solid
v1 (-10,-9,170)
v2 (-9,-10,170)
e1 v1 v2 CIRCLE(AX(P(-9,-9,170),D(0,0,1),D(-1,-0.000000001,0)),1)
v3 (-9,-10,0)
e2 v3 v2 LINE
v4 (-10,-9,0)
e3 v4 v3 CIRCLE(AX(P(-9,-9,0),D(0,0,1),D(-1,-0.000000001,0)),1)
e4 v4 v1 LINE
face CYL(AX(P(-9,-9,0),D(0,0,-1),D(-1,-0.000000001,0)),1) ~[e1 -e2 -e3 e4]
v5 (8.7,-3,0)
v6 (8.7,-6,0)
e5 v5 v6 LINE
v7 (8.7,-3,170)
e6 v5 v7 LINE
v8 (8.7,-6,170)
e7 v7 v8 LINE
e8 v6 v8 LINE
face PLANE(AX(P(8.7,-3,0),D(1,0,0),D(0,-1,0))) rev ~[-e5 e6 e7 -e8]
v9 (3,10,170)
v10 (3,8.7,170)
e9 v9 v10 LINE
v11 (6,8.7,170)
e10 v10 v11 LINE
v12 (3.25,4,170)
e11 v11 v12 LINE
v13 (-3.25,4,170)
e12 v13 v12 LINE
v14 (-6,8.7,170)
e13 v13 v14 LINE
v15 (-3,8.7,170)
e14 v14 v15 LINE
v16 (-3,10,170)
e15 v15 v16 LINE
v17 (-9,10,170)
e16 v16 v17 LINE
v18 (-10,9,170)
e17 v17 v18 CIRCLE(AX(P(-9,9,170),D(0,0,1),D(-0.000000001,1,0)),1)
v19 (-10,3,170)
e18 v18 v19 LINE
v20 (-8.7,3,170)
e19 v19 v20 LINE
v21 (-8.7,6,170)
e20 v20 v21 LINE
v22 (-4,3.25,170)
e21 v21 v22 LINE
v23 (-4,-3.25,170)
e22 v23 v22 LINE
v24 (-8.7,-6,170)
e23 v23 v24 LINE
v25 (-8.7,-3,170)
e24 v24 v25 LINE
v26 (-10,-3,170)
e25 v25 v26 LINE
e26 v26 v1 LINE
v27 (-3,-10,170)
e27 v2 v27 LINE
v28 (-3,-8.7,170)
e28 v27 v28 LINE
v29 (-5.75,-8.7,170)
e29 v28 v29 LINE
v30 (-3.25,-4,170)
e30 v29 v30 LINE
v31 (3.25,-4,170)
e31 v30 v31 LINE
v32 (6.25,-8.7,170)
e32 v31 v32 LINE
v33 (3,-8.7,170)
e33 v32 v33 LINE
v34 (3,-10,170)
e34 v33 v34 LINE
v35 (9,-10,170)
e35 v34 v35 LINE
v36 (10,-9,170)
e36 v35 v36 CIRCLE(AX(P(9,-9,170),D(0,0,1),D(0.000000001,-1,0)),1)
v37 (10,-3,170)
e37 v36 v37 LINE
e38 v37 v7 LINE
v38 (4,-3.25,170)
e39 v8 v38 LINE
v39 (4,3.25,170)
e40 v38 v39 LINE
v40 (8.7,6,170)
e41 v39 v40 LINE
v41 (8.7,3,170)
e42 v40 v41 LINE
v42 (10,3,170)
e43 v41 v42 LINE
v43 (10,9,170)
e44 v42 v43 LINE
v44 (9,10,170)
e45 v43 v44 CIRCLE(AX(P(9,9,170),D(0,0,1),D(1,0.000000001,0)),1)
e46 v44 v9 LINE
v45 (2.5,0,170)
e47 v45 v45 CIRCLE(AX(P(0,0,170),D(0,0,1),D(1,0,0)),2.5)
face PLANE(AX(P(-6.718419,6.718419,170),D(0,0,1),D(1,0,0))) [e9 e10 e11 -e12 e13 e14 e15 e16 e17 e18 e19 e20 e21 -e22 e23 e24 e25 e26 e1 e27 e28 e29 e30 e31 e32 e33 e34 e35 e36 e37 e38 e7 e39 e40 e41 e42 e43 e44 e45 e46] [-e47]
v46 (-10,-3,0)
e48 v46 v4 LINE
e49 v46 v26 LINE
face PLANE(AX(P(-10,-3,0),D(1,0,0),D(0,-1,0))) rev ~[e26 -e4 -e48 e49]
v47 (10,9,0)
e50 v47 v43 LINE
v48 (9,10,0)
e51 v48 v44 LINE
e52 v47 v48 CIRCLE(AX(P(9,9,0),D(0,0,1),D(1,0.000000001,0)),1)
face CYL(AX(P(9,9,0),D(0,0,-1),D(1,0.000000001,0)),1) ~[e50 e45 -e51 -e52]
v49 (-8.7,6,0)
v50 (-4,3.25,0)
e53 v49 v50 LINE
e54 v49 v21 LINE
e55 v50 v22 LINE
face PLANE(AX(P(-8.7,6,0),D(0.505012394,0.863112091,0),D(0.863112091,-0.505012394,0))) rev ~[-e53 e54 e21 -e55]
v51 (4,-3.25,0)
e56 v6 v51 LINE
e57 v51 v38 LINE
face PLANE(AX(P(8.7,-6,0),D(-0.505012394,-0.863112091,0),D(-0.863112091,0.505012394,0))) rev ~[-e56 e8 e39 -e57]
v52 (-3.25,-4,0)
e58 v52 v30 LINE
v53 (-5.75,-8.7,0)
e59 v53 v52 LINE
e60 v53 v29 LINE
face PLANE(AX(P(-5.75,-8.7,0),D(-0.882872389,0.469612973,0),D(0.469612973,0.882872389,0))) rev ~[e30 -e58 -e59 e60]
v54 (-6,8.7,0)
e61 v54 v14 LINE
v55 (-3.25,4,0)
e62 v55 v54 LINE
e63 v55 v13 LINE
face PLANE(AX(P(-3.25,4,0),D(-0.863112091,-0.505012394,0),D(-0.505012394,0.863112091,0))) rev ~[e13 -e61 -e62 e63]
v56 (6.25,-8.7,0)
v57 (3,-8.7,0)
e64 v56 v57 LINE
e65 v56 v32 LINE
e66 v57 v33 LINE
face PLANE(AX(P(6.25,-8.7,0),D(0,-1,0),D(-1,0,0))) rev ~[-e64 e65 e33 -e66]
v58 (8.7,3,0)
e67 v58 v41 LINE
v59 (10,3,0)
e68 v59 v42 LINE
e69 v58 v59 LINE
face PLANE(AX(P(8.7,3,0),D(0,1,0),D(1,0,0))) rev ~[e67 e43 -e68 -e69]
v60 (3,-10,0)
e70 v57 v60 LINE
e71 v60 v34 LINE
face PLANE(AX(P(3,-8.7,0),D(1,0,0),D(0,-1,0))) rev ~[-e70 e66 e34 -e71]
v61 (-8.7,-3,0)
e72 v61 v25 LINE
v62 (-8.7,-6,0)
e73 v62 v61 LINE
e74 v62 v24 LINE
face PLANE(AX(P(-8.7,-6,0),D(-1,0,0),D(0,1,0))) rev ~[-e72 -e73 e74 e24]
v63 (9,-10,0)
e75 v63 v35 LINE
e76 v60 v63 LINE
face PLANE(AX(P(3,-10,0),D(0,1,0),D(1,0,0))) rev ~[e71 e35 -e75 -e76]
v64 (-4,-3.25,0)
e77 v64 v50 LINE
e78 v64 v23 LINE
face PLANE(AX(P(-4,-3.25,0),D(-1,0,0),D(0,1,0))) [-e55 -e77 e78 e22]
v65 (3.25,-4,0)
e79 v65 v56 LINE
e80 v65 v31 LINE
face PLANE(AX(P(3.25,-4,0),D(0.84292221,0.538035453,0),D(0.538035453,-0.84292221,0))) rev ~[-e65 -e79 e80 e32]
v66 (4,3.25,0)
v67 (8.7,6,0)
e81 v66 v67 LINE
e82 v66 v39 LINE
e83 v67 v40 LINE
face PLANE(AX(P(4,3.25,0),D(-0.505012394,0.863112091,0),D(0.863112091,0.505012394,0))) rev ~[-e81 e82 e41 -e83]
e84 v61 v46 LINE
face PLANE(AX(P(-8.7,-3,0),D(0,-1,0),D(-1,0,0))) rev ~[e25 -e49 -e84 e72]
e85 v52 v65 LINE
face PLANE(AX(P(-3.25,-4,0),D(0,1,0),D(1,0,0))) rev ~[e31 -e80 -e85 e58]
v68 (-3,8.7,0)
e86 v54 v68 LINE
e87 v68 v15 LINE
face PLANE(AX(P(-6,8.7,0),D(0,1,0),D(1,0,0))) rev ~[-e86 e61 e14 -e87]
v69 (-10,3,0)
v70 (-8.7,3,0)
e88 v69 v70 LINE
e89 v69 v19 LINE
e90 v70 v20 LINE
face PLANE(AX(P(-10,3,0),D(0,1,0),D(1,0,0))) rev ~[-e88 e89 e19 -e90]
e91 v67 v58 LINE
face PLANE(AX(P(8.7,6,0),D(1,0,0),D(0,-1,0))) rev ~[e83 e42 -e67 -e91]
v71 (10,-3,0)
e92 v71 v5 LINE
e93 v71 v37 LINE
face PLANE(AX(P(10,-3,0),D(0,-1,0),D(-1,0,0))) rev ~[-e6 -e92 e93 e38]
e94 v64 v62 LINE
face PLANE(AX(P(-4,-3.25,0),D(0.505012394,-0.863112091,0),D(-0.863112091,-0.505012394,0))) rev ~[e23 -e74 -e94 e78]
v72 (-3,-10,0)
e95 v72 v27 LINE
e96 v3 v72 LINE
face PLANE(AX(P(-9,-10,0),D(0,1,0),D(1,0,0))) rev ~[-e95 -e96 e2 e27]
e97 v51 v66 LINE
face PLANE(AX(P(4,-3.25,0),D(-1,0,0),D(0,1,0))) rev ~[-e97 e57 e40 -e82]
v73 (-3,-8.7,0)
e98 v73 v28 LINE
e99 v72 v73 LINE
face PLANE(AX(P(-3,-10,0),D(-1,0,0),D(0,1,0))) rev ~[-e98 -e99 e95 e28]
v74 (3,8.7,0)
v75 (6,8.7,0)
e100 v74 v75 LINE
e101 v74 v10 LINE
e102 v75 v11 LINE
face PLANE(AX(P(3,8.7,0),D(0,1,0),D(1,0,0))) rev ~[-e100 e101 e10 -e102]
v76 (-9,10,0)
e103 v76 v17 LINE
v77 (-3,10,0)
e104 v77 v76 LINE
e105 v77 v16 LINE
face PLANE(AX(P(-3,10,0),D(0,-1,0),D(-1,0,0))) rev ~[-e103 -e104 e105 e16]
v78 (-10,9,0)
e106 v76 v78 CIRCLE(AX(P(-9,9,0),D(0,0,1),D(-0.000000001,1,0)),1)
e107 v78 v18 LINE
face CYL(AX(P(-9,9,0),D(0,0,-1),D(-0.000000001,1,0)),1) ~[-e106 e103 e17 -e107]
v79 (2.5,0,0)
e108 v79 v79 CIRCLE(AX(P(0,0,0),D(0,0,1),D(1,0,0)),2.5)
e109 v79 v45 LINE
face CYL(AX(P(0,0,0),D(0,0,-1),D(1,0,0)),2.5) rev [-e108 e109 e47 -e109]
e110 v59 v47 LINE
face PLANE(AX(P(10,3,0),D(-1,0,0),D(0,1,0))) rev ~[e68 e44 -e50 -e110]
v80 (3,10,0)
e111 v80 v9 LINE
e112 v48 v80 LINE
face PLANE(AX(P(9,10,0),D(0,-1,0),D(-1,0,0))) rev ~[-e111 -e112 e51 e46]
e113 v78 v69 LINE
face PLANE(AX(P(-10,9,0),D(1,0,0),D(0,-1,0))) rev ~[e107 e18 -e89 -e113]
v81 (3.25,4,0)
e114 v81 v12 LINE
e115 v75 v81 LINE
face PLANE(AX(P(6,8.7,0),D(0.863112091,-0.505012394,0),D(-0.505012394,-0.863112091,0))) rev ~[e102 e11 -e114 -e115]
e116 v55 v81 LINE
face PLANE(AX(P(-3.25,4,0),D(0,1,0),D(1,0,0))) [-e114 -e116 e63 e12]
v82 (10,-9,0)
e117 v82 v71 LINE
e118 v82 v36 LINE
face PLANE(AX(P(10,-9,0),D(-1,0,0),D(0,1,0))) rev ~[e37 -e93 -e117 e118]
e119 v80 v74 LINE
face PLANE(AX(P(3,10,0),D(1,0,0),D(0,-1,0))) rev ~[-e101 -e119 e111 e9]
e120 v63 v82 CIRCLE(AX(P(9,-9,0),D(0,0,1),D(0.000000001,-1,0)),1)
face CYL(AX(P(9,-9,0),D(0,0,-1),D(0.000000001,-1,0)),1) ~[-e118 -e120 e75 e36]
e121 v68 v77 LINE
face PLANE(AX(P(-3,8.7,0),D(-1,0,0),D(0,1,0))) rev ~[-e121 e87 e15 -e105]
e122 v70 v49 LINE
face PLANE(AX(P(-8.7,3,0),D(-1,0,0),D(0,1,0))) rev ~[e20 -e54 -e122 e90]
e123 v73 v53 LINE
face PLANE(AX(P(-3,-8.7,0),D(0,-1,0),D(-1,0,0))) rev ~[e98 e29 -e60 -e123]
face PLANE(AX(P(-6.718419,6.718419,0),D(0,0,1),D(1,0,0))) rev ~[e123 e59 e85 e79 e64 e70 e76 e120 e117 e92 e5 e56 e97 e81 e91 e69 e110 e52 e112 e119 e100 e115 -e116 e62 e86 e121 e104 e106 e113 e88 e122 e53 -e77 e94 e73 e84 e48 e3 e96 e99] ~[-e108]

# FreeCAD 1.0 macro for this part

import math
import FreeCAD as App
import Part
import Sketcher

doc = App.newDocument("Part")
body = doc.addObject("PartDesign::Body", "Body")

# Sketch on XY plane
sketch1 = body.newObject("Sketcher::SketchObject", "Sketch")
sketch1.AttachmentSupport = (doc.getObject("XY_Plane"), [""])
sketch1.MapMode = "FlatFace"
sketch1.addGeometry(Part.LineSegment(App.Vector(-3, 8.7, 0), App.Vector(-3, 10, 0)), False)
sketch1.addGeometry(Part.LineSegment(App.Vector(-3, 10, 0), App.Vector(-9, 10, 0)), False)
sketch1.addGeometry(Part.ArcOfCircle(Part.Circle(App.Vector(-9, 9, 0), App.Vector(0, 0, 1), 1), math.radians(90), math.radians(180)), False)
sketch1.addGeometry(Part.LineSegment(App.Vector(-10, 9, 0), App.Vector(-10, 3, 0)), False)
sketch1.addGeometry(Part.LineSegment(App.Vector(-10, 3, 0), App.Vector(-8.7, 3, 0)), False)
sketch1.addGeometry(Part.LineSegment(App.Vector(-8.7, 3, 0), App.Vector(-8.7, 6, 0)), False)
sketch1.addGeometry(Part.LineSegment(App.Vector(-8.7, 6, 0), App.Vector(-4, 3.25, 0)), False)
sketch1.addGeometry(Part.LineSegment(App.Vector(-4, 3.25, 0), App.Vector(-4, -3.25, 0)), False)
sketch1.addGeometry(Part.LineSegment(App.Vector(-4, -3.25, 0), App.Vector(-8.7, -6, 0)), False)
sketch1.addGeometry(Part.LineSegment(App.Vector(-8.7, -6, 0), App.Vector(-8.7, -3, 0)), False)
sketch1.addGeometry(Part.LineSegment(App.Vector(-8.7, -3, 0), App.Vector(-10, -3, 0)), False)
sketch1.addGeometry(Part.LineSegment(App.Vector(-10, -3, 0), App.Vector(-10, -9, 0)), False)
sketch1.addGeometry(Part.ArcOfCircle(Part.Circle(App.Vector(-9, -9, 0), App.Vector(0, 0, 1), 1), math.radians(-180), math.radians(-90)), False)
sketch1.addGeometry(Part.LineSegment(App.Vector(-9, -10, 0), App.Vector(-3, -10, 0)), False)
sketch1.addGeometry(Part.LineSegment(App.Vector(-3, -10, 0), App.Vector(-3, -8.7, 0)), False)
sketch1.addGeometry(Part.LineSegment(App.Vector(-3, -8.7, 0), App.Vector(-5.75, -8.7, 0)), False)
sketch1.addGeometry(Part.LineSegment(App.Vector(-5.75, -8.7, 0), App.Vector(-3.25, -4, 0)), False)
sketch1.addGeometry(Part.LineSegment(App.Vector(-3.25, -4, 0), App.Vector(3.25, -4, 0)), False)
sketch1.addGeometry(Part.LineSegment(App.Vector(3.25, -4, 0), App.Vector(6.25, -8.7, 0)), False)
sketch1.addGeometry(Part.LineSegment(App.Vector(6.25, -8.7, 0), App.Vector(3, -8.7, 0)), False)
sketch1.addGeometry(Part.LineSegment(App.Vector(3, -8.7, 0), App.Vector(3, -10, 0)), False)
sketch1.addGeometry(Part.LineSegment(App.Vector(3, -10, 0), App.Vector(9, -10, 0)), False)
sketch1.addGeometry(Part.ArcOfCircle(Part.Circle(App.Vector(9, -9, 0), App.Vector(0, 0, 1), 1), math.radians(-90), math.radians(0)), False)
sketch1.addGeometry(Part.LineSegment(App.Vector(10, -9, 0), App.Vector(10, -3, 0)), False)
sketch1.addGeometry(Part.LineSegment(App.Vector(10, -3, 0), App.Vector(8.7, -3, 0)), False)
sketch1.addGeometry(Part.LineSegment(App.Vector(8.7, -3, 0), App.Vector(8.7, -6, 0)), False)
sketch1.addGeometry(Part.LineSegment(App.Vector(8.7, -6, 0), App.Vector(4, -3.25, 0)), False)
sketch1.addGeometry(Part.LineSegment(App.Vector(4, -3.25, 0), App.Vector(4, 3.25, 0)), False)
sketch1.addGeometry(Part.LineSegment(App.Vector(4, 3.25, 0), App.Vector(8.7, 6, 0)), False)
sketch1.addGeometry(Part.LineSegment(App.Vector(8.7, 6, 0), App.Vector(8.7, 3, 0)), False)
sketch1.addGeometry(Part.LineSegment(App.Vector(8.7, 3, 0), App.Vector(10, 3, 0)), False)
sketch1.addGeometry(Part.LineSegment(App.Vector(10, 3, 0), App.Vector(10, 9, 0)), False)
sketch1.addGeometry(Part.ArcOfCircle(Part.Circle(App.Vector(9, 9, 0), App.Vector(0, 0, 1), 1), math.radians(0), math.radians(90)), False)
sketch1.addGeometry(Part.LineSegment(App.Vector(9, 10, 0), App.Vector(3, 10, 0)), False)
sketch1.addGeometry(Part.LineSegment(App.Vector(3, 10, 0), App.Vector(3, 8.7, 0)), False)
sketch1.addGeometry(Part.LineSegment(App.Vector(3, 8.7, 0), App.Vector(6, 8.7, 0)), False)
sketch1.addGeometry(Part.LineSegment(App.Vector(6, 8.7, 0), App.Vector(3.25, 4, 0)), False)
sketch1.addGeometry(Part.LineSegment(App.Vector(3.25, 4, 0), App.Vector(-3.25, 4, 0)), False)
sketch1.addGeometry(Part.LineSegment(App.Vector(-3.25, 4, 0), App.Vector(-6, 8.7, 0)), False)
sketch1.addGeometry(Part.LineSegment(App.Vector(-6, 8.7, 0), App.Vector(-3, 8.7, 0)), False)
sketch1.addGeometry(Part.Circle(App.Vector(0, 0, 0), App.Vector(0, 0, 1), 2.5), False)
sketch1.addConstraint(Sketcher.Constraint("Coincident", 0, 2, 1, 1))
sketch1.addConstraint(Sketcher.Constraint("Tangent", 1, 2, 2, 1))
sketch1.addConstraint(Sketcher.Constraint("Tangent", 2, 2, 3, 1))
sketch1.addConstraint(Sketcher.Constraint("Coincident", 3, 2, 4, 1))
sketch1.addConstraint(Sketcher.Constraint("Coincident", 4, 2, 5, 1))
sketch1.addConstraint(Sketcher.Constraint("Coincident", 5, 2, 6, 1))
sketch1.addConstraint(Sketcher.Constraint("Coincident", 6, 2, 7, 1))
sketch1.addConstraint(Sketcher.Constraint("Coincident", 7, 2, 8, 1))
sketch1.addConstraint(Sketcher.Constraint("Coincident", 8, 2, 9, 1))
sketch1.addConstraint(Sketcher.Constraint("Coincident", 9, 2, 10, 1))
sketch1.addConstraint(Sketcher.Constraint("Coincident", 10, 2, 11, 1))
sketch1.addConstraint(Sketcher.Constraint("Tangent", 11, 2, 12, 1))
sketch1.addConstraint(Sketcher.Constraint("Tangent", 12, 2, 13, 1))
sketch1.addConstraint(Sketcher.Constraint("Coincident", 13, 2, 14, 1))
sketch1.addConstraint(Sketcher.Constraint("Coincident", 14, 2, 15, 1))
sketch1.addConstraint(Sketcher.Constraint("Coincident", 15, 2, 16, 1))
sketch1.addConstraint(Sketcher.Constraint("Coincident", 16, 2, 17, 1))
sketch1.addConstraint(Sketcher.Constraint("Coincident", 17, 2, 18, 1))
sketch1.addConstraint(Sketcher.Constraint("Coincident", 18, 2, 19, 1))
sketch1.addConstraint(Sketcher.Constraint("Coincident", 19, 2, 20, 1))
sketch1.addConstraint(Sketcher.Constraint("Coincident", 20, 2, 21, 1))
sketch1.addConstraint(Sketcher.Constraint("Tangent", 21, 2, 22, 1))
sketch1.addConstraint(Sketcher.Constraint("Tangent", 22, 2, 23, 1))
sketch1.addConstraint(Sketcher.Constraint("Coincident", 23, 2, 24, 1))
sketch1.addConstraint(Sketcher.Constraint("Coincident", 24, 2, 25, 1))
sketch1.addConstraint(Sketcher.Constraint("Coincident", 25, 2, 26, 1))
sketch1.addConstraint(Sketcher.Constraint("Coincident", 26, 2, 27, 1))
sketch1.addConstraint(Sketcher.Constraint("Coincident", 27, 2, 28, 1))
sketch1.addConstraint(Sketcher.Constraint("Coincident", 28, 2, 29, 1))
sketch1.addConstraint(Sketcher.Constraint("Coincident", 29, 2, 30, 1))
sketch1.addConstraint(Sketcher.Constraint("Coincident", 30, 2, 31, 1))
sketch1.addConstraint(Sketcher.Constraint("Tangent", 31, 2, 32, 1))
sketch1.addConstraint(Sketcher.Constraint("Tangent", 32, 2, 33, 1))
sketch1.addConstraint(Sketcher.Constraint("Coincident", 33, 2, 34, 1))
sketch1.addConstraint(Sketcher.Constraint("Coincident", 34, 2, 35, 1))
sketch1.addConstraint(Sketcher.Constraint("Coincident", 35, 2, 36, 1))
sketch1.addConstraint(Sketcher.Constraint("Coincident", 36, 2, 37, 1))
sketch1.addConstraint(Sketcher.Constraint("Coincident", 37, 2, 38, 1))
sketch1.addConstraint(Sketcher.Constraint("Coincident", 38, 2, 39, 1))
sketch1.addConstraint(Sketcher.Constraint("Coincident", 39, 2, 0, 1))
sketch1.addConstraint(Sketcher.Constraint("Vertical", 0))
sketch1.addConstraint(Sketcher.Constraint("Horizontal", 1))
sketch1.addConstraint(Sketcher.Constraint("Vertical", 3))
sketch1.addConstraint(Sketcher.Constraint("Horizontal", 4))
sketch1.addConstraint(Sketcher.Constraint("Vertical", 5))
sketch1.addConstraint(Sketcher.Constraint("Vertical", 7))
sketch1.addConstraint(Sketcher.Constraint("Vertical", 9))
sketch1.addConstraint(Sketcher.Constraint("Horizontal", 10))
sketch1.addConstraint(Sketcher.Constraint("Vertical", 11))
sketch1.addConstraint(Sketcher.Constraint("Horizontal", 13))
sketch1.addConstraint(Sketcher.Constraint("Vertical", 14))
sketch1.addConstraint(Sketcher.Constraint("Horizontal", 15))
sketch1.addConstraint(Sketcher.Constraint("Horizontal", 17))
sketch1.addConstraint(Sketcher.Constraint("Horizontal", 19))
sketch1.addConstraint(Sketcher.Constraint("Vertical", 20))
sketch1.addConstraint(Sketcher.Constraint("Horizontal", 21))
sketch1.addConstraint(Sketcher.Constraint("Vertical", 23))
sketch1.addConstraint(Sketcher.Constraint("Horizontal", 24))
sketch1.addConstraint(Sketcher.Constraint("Vertical", 25))
sketch1.addConstraint(Sketcher.Constraint("Vertical", 27))
sketch1.addConstraint(Sketcher.Constraint("Vertical", 29))
sketch1.addConstraint(Sketcher.Constraint("Horizontal", 30))
sketch1.addConstraint(Sketcher.Constraint("Vertical", 31))
sketch1.addConstraint(Sketcher.Constraint("Horizontal", 33))
sketch1.addConstraint(Sketcher.Constraint("Vertical", 34))
sketch1.addConstraint(Sketcher.Constraint("Horizontal", 35))
sketch1.addConstraint(Sketcher.Constraint("Horizontal", 37))
sketch1.addConstraint(Sketcher.Constraint("Horizontal", 39))
sketch1.addConstraint(Sketcher.Constraint("Coincident", 40, 3, -1, 1))
sketch1.addConstraint(Sketcher.Constraint("Equal", 2, 12))
sketch1.addConstraint(Sketcher.Constraint("Equal", 12, 22))
sketch1.addConstraint(Sketcher.Constraint("Equal", 22, 32))
sketch1.addConstraint(Sketcher.Constraint("Symmetric", 2, 3, 22, 3, -1, 1))
sketch1.addConstraint(Sketcher.Constraint("Symmetric", 12, 3, 32, 3, -1, 1))
sketch1.addConstraint(Sketcher.Constraint("Symmetric", 4, 2, 24, 2, -1, 1))
sketch1.addConstraint(Sketcher.Constraint("Symmetric", 6, 2, 26, 2, -1, 1))
sketch1.addConstraint(Sketcher.Constraint("Symmetric", 8, 2, 28, 2, -1, 1))
sketch1.addConstraint(Sketcher.Constraint("Symmetric", 14, 2, 34, 2, -1, 1))
sketch1.addConstraint(Sketcher.Constraint("Symmetric", 16, 2, 36, 2, -1, 1))
sketch1.addConstraint(Sketcher.Constraint("Symmetric", 19, 2, 39, 2, -1, 1))
sketch1.addConstraint(Sketcher.Constraint("Symmetric", 12, 3, 22, 3, -2))
sketch1.addConstraint(Sketcher.Constraint("Symmetric", 14, 2, 19, 2, -2))
sketch1.addConstraint(Sketcher.Constraint("Symmetric", 9, 2, 24, 2, -2))
sketch1.addConstraint(Sketcher.Constraint("Parallel", 6, 26))
sketch1.addConstraint(Sketcher.Constraint("Parallel", 8, 28))
sketch1.addConstraint(Sketcher.Constraint("Perpendicular", 26, 36))
sketch1.addConstraint(Sketcher.Constraint("Perpendicular", 28, 38))
sketch1.addConstraint(Sketcher.Constraint("Horizontal", 8, 2, 25, 2))
sketch1.addConstraint(Sketcher.Constraint("Horizontal", 7, 2, 26, 2))
sketch1.addConstraint(Sketcher.Constraint("Horizontal", 4, 2, 29, 2))
sketch1.addConstraint(Sketcher.Constraint("Vertical", 17, 2, 36, 2))
sketch1.addConstraint(Sketcher.Constraint("Vertical", 16, 2, 37, 2))
sketch1.addConstraint(Sketcher.Constraint("Equal", 30, 0))
sketch1.addConstraint(Sketcher.Constraint("Equal", 33, 3))
sketch1.addConstraint(Sketcher.Constraint("Equal", 39, 5))
sketch1.addConstraint(Sketcher.Constraint("Equal", 37, 7))
sketch1.addConstraint(Sketcher.Constraint("Equal", 28, 36))
sketch1.addConstraint(Sketcher.Constraint("Diameter", 40, 5.0))
sketch1.addConstraint(Sketcher.Constraint("Radius", 2, 1.0))
sketch1.addConstraint(Sketcher.Constraint("DistanceX", 1, 2, 1, 1, 6.0))
sketch1.addConstraint(Sketcher.Constraint("DistanceX", 35, 1, 35, 2, 3.0))
sketch1.addConstraint(Sketcher.Constraint("DistanceX", 4, 1, 4, 2, 1.3))
sketch1.addConstraint(Sketcher.Constraint("DistanceX", 17, 1, 17, 2, 6.5))
sketch1.addConstraint(Sketcher.Constraint("DistanceX", 2, 3, -1, 1, 9.0))
sketch1.addConstraint(Sketcher.Constraint("DistanceX", 6, 2, -1, 1, 4.0))
sketch1.addConstraint(Sketcher.Constraint("DistanceX", 17, 2, 18, 2, 3.0))
sketch1.addConstraint(Sketcher.Constraint("DistanceX", 15, 2, 15, 1, 2.75))
pad1 = body.newObject("PartDesign::Pad", "Pad")
pad1.Profile = sketch1
pad1.Length = 170

doc.recompute()
